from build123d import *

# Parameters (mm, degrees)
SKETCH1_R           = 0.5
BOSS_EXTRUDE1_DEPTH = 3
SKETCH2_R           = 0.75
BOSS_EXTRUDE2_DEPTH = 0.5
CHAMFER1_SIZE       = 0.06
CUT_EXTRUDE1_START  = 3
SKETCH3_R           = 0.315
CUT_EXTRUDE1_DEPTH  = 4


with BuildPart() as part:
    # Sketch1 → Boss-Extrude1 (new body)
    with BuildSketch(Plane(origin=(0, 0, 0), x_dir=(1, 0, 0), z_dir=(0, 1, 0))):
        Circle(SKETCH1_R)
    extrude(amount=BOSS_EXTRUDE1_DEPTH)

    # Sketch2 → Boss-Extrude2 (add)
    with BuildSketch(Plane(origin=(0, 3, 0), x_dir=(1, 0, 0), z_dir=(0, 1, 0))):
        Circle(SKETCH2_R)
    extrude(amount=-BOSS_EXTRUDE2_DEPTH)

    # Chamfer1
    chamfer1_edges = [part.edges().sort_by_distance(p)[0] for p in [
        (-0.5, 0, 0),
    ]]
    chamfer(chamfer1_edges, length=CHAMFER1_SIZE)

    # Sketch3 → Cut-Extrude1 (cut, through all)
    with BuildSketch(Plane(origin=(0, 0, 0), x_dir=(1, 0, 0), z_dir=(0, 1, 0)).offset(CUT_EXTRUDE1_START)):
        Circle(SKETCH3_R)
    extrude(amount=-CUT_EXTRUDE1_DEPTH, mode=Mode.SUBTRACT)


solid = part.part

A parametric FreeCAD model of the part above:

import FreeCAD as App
import Part
import Sketcher

V = App.Vector
Q = App.Units.Quantity


def edges_at(feature, points):
    """Names of the edges that pass closest to the given points."""
    edges = feature.Shape.Edges
    near = lambda p: min(range(len(edges)), key=lambda i: edges[i].distToShape(Part.Vertex(*p))[0])
    return sorted({f"Edge{near(p) + 1}" for p in points})

doc = App.newDocument("Part")
body = doc.addObject("PartDesign::Body", "Body")

sketch1 = doc.addObject("Sketcher::SketchObject", "Sketch")
body.addObject(sketch1)
sketch1.AttachmentSupport = (doc.XZ_Plane, [""])
sketch1.MapMode = "FlatFace"
sketch1.addGeometry(Part.Circle(V(0, 0, 0), V(0, 0, 1), 0.5), False)
sketch1.addConstraint([
    Sketcher.Constraint("Coincident", 0, 3, -1, 1),
    Sketcher.Constraint("Diameter", 0, Q("1 mm")),
])
pad1 = doc.addObject("PartDesign::Pad", "Pad")
body.addObject(pad1)
pad1.Profile = sketch1
pad1.Length = 3
pad1.Reversed = True

sketch2 = doc.addObject("Sketcher::SketchObject", "Sketch001")
body.addObject(sketch2)
sketch2.AttachmentSupport = (doc.XZ_Plane, [""])
sketch2.MapMode = "FlatFace"
sketch2.AttachmentOffset = App.Placement(V(0, 0, -3), App.Rotation())
sketch2.addGeometry(Part.Circle(V(0, 0, 0), V(0, 0, 1), 0.75), False)
sketch2.addConstraint([
    Sketcher.Constraint("Coincident", 0, 3, -1, 1),
    Sketcher.Constraint("Diameter", 0, Q("1.5 mm")),
])
pad2 = doc.addObject("PartDesign::Pad", "Pad001")
body.addObject(pad2)
pad2.Profile = sketch2
pad2.Length = 0.5
doc.recompute()

chamfer = doc.addObject("PartDesign::Chamfer", "Chamfer")
body.addObject(chamfer)
chamfer.Base = (pad2, edges_at(pad2, [(-0.5, 0, 0)]))
chamfer.Size = 0.06

sketch3 = doc.addObject("Sketcher::SketchObject", "Sketch002")
body.addObject(sketch3)
sketch3.AttachmentSupport = (doc.XZ_Plane, [""])
sketch3.MapMode = "FlatFace"
sketch3.AttachmentOffset = App.Placement(V(0, 0, -3), App.Rotation())
sketch3.addGeometry(Part.Circle(V(0, 0, 0), V(0, 0, 1), 0.315), False)
sketch3.addConstraint([
    Sketcher.Constraint("Coincident", 0, 3, -1, 1),
    Sketcher.Constraint("Diameter", 0, Q("0.63 mm")),
])
pocket1 = doc.addObject("PartDesign::Pocket", "Pocket")
body.addObject(pocket1)
pocket1.Profile = sketch3
pocket1.Type = "ThroughAll"
pocket1.Reversed = True

doc.recompute()
